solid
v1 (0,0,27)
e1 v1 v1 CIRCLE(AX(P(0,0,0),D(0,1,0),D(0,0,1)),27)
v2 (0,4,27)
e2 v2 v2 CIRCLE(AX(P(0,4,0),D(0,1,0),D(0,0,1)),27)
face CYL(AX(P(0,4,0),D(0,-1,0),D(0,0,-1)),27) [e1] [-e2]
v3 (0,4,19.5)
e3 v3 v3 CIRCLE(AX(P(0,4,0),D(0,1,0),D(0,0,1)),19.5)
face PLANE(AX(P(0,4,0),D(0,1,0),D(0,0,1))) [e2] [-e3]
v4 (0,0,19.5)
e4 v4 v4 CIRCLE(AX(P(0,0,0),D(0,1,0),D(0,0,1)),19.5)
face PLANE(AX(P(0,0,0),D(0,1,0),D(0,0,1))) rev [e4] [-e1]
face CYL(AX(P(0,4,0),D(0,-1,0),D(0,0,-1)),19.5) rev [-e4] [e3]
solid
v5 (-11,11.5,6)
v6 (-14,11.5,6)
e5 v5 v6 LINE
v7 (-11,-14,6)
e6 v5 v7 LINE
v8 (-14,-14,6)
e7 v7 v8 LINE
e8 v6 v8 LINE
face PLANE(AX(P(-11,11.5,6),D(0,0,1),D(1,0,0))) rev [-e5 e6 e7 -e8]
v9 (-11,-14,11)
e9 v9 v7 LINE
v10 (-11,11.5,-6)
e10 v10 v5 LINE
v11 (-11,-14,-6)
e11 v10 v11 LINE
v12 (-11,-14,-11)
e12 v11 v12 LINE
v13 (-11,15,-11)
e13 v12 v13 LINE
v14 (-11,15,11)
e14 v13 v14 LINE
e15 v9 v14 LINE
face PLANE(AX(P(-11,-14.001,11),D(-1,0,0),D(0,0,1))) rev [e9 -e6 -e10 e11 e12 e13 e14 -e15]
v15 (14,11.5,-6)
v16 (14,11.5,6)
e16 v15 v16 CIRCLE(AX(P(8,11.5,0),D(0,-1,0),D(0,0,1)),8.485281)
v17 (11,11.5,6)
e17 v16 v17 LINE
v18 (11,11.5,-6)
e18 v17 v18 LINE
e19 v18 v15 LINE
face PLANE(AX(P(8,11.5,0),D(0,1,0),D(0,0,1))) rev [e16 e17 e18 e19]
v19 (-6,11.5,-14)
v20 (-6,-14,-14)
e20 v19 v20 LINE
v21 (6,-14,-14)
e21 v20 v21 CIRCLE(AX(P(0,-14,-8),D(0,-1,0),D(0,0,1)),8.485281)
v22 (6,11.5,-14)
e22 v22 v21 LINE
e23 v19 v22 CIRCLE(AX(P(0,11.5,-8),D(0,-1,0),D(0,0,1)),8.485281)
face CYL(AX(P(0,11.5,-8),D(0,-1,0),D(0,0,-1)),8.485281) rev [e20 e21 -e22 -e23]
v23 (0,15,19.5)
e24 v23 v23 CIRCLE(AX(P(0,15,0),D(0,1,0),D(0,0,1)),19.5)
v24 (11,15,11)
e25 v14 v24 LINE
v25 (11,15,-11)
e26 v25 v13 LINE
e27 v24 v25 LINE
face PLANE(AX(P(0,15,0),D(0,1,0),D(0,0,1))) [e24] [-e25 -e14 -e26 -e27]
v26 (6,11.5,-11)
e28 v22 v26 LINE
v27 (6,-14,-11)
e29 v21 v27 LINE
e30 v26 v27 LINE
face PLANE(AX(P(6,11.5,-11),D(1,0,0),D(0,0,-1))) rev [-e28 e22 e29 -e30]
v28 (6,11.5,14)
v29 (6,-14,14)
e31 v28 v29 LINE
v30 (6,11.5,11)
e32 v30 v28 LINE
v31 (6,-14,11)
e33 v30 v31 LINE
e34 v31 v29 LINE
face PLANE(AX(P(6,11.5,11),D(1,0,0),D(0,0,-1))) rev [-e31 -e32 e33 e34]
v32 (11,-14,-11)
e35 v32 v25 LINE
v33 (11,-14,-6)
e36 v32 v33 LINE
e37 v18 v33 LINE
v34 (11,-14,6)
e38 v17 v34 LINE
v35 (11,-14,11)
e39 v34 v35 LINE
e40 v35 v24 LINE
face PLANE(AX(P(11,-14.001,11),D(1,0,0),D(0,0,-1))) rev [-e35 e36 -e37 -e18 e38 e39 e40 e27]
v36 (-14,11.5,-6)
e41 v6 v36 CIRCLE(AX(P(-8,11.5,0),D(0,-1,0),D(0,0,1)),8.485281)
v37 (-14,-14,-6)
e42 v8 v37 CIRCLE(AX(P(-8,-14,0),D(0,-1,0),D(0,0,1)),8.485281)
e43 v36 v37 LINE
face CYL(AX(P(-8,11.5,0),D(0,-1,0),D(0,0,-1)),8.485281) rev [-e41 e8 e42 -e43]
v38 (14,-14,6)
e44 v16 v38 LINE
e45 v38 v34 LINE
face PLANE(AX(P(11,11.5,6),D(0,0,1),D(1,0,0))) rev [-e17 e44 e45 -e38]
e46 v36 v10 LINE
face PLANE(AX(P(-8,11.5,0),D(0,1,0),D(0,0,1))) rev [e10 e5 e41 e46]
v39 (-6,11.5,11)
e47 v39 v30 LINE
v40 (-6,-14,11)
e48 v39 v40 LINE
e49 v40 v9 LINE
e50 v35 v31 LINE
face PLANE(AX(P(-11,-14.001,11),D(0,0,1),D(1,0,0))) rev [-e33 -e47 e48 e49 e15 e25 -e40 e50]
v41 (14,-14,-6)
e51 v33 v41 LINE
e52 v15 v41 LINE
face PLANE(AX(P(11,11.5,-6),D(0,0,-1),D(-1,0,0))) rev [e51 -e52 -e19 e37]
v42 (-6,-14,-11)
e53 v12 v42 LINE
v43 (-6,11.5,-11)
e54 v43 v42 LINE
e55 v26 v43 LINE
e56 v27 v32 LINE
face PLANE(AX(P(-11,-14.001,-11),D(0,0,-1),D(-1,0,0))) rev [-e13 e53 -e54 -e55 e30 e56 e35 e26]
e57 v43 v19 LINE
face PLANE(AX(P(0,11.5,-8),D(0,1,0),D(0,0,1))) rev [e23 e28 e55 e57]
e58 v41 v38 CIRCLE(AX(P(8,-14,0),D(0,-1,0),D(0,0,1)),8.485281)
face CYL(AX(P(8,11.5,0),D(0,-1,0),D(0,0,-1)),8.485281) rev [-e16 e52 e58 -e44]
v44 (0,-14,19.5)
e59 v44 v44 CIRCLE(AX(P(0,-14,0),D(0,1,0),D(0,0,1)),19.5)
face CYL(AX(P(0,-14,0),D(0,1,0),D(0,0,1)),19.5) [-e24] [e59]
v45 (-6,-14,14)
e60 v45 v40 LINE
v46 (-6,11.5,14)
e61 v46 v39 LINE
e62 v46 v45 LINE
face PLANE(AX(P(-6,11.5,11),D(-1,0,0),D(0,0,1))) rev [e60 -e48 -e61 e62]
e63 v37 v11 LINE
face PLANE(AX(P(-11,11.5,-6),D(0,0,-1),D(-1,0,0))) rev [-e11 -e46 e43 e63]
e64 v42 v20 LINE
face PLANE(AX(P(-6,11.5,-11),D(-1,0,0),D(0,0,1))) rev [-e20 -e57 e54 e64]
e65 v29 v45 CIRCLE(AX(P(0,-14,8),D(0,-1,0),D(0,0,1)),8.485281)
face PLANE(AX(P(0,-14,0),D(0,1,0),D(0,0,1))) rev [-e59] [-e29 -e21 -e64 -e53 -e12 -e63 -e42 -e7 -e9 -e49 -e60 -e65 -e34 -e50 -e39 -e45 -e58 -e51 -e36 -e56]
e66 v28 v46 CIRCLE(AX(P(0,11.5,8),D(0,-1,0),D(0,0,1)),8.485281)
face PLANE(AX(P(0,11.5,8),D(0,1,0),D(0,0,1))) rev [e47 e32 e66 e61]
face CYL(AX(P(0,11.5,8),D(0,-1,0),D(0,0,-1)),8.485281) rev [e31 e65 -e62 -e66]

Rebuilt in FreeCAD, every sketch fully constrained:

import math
import FreeCAD as App
import Part
import Sketcher


def add_polygon(sketch, points):
    """Adds a closed chain of lines whose ends are joined by coincident constraints."""
    first, n = sketch.GeometryCount, len(points)
    for a, b in zip(points, points[1:] + points[:1]):
        sketch.addGeometry(Part.LineSegment(App.Vector(*a, 0), App.Vector(*b, 0)), False)
    for i in range(n):
        sketch.addConstraint(Sketcher.Constraint("Coincident", first + i, 2, first + (i + 1) % n, 1))

doc = App.newDocument("Part")
body = doc.addObject("PartDesign::Body", "Body")

# Sketch on XZ plane
sketch1 = body.newObject("Sketcher::SketchObject", "Sketch")
sketch1.AttachmentSupport = (doc.getObject("XZ_Plane"), [""])
sketch1.MapMode = "FlatFace"
sketch1.addGeometry([
    Part.Circle(App.Vector(0, 0, 0), App.Vector(0, 0, 1), 27),
    Part.Circle(App.Vector(0, 0, 0), App.Vector(0, 0, 1), 20),
], False)
sketch1.addConstraint([
    Sketcher.Constraint("Coincident", 0, 3, -1, 1),
    Sketcher.Constraint("Coincident", 1, 3, -1, 1),
    Sketcher.Constraint("Diameter", 0, 54.0),
    Sketcher.Constraint("Diameter", 1, 39.0),
])
pad1 = body.newObject("PartDesign::Pad", "Pad")
pad1.Profile = sketch1
pad1.Length = 4
pad1.Reversed = True
body2 = doc.addObject("PartDesign::Body", "Body001")

# Sketch on XZ plane
sketch2 = body2.newObject("Sketcher::SketchObject", "Sketch001")
sketch2.AttachmentSupport = (doc.getObject("XZ_Plane001"), [""])
sketch2.MapMode = "FlatFace"
sketch2.AttachmentOffset = App.Placement(App.Vector(0, 0, -4), App.Rotation())
sketch2.addGeometry(Part.Circle(App.Vector(0, 0, 0), App.Vector(0, 0, 1), 20), False)
sketch2.addConstraint([
    Sketcher.Constraint("Coincident", 0, 3, -1, 1),
    Sketcher.Constraint("Diameter", 0, 39.0),
])
pad2 = body2.newObject("PartDesign::Pad", "Pad001")
pad2.Profile = sketch2
pad2.Type = "TwoLengths"
pad2.Length = 11
pad2.Length2 = 18
pad2.Reversed = True

# Sketch on XZ plane
sketch3 = body2.newObject("Sketcher::SketchObject", "Sketch002")
sketch3.AttachmentSupport = (doc.getObject("XZ_Plane001"), [""])
sketch3.MapMode = "FlatFace"
sketch3.AttachmentOffset = App.Placement(App.Vector(0, 0, -15), App.Rotation())
add_polygon(sketch3, [(-11, -11), (-11, 11), (11, 11), (11, -11)])  # lines 0-3
sketch3.addConstraint([
    Sketcher.Constraint("Vertical", 0),
    Sketcher.Constraint("Horizontal", 1),
    Sketcher.Constraint("Vertical", 2),
    Sketcher.Constraint("Horizontal", 3),
    Sketcher.Constraint("Symmetric", 0, 2, 2, 2, -1, 1),
    Sketcher.Constraint("Equal", 3, 0),
    Sketcher.Constraint("DistanceX", 1, 1, 1, 2, 22.0),
])
pocket1 = body2.newObject("PartDesign::Pocket", "Pocket")
pocket1.Profile = sketch3
pocket1.Length = 29
pocket1.Reversed = True

# Sketch on XZ plane
sketch4 = body2.newObject("Sketcher::SketchObject", "Sketch003")
sketch4.AttachmentSupport = (doc.getObject("XZ_Plane001"), [""])
sketch4.MapMode = "FlatFace"
sketch4.AttachmentOffset = App.Placement(App.Vector(0, 0, 14), App.Rotation())
sketch4.addGeometry([
    Part.LineSegment(App.Vector(11, 6, 0), App.Vector(11, -6, 0)),  # 0
    Part.LineSegment(App.Vector(11, -6, 0), App.Vector(14, -6, 0)),  # 1
    Part.ArcOfCircle(Part.Circle(App.Vector(8, 0, 0), App.Vector(0, 0, 1), 8.5), math.radians(-45), math.radians(45)),  # 2
    Part.LineSegment(App.Vector(14, 6, 0), App.Vector(11, 6, 0)),  # 3
    Part.LineSegment(App.Vector(-6, 11, 0), App.Vector(6, 11, 0)),  # 4
    Part.LineSegment(App.Vector(6, 11, 0), App.Vector(6, 14, 0)),  # 5
    Part.ArcOfCircle(Part.Circle(App.Vector(0, 8, 0), App.Vector(0, 0, 1), 8.5), math.radians(45), math.radians(135)),  # 6
    Part.LineSegment(App.Vector(-6, 14, 0), App.Vector(-6, 11, 0)),  # 7
    Part.LineSegment(App.Vector(6, -11, 0), App.Vector(-6, -11, 0)),  # 8
    Part.LineSegment(App.Vector(-6, -11, 0), App.Vector(-6, -14, 0)),  # 9
    Part.ArcOfCircle(Part.Circle(App.Vector(0, -8, 0), App.Vector(0, 0, 1), 8.5), math.radians(-135), math.radians(-45)),  # 10
    Part.LineSegment(App.Vector(6, -14, 0), App.Vector(6, -11, 0)),  # 11
    Part.LineSegment(App.Vector(-11, -6, 0), App.Vector(-11, 6, 0)),  # 12
    Part.LineSegment(App.Vector(-11, 6, 0), App.Vector(-14, 6, 0)),  # 13
    Part.ArcOfCircle(Part.Circle(App.Vector(-8, 0, 0), App.Vector(0, 0, 1), 8.5), math.radians(135), math.radians(225)),  # 14
    Part.LineSegment(App.Vector(-14, -6, 0), App.Vector(-11, -6, 0)),  # 15
], False)
sketch4.addConstraint([
    Sketcher.Constraint("Coincident", 0, 2, 1, 1),
    Sketcher.Constraint("Coincident", 1, 2, 2, 1),
    Sketcher.Constraint("Coincident", 2, 2, 3, 1),
    Sketcher.Constraint("Coincident", 3, 2, 0, 1),
    Sketcher.Constraint("Coincident", 4, 2, 5, 1),
    Sketcher.Constraint("Coincident", 5, 2, 6, 1),
    Sketcher.Constraint("Coincident", 6, 2, 7, 1),
    Sketcher.Constraint("Coincident", 7, 2, 4, 1),
    Sketcher.Constraint("Coincident", 8, 2, 9, 1),
    Sketcher.Constraint("Coincident", 9, 2, 10, 1),
    Sketcher.Constraint("Coincident", 10, 2, 11, 1),
    Sketcher.Constraint("Coincident", 11, 2, 8, 1),
    Sketcher.Constraint("Coincident", 12, 2, 13, 1),
    Sketcher.Constraint("Coincident", 13, 2, 14, 1),
    Sketcher.Constraint("Coincident", 14, 2, 15, 1),
    Sketcher.Constraint("Coincident", 15, 2, 12, 1),
    Sketcher.Constraint("Vertical", 0),
    Sketcher.Constraint("Horizontal", 1),
    Sketcher.Constraint("Horizontal", 3),
    Sketcher.Constraint("Horizontal", 4),
    Sketcher.Constraint("Vertical", 5),
    Sketcher.Constraint("Vertical", 7),
    Sketcher.Constraint("Horizontal", 8),
    Sketcher.Constraint("Vertical", 9),
    Sketcher.Constraint("Vertical", 11),
    Sketcher.Constraint("Vertical", 12),
    Sketcher.Constraint("Horizontal", 13),
    Sketcher.Constraint("Horizontal", 15),
    Sketcher.Constraint("Equal", 2, 6),
    Sketcher.Constraint("Equal", 6, 10),
    Sketcher.Constraint("Equal", 10, 14),
    Sketcher.Constraint("Symmetric", 6, 3, 10, 3, -1, 1),
    Sketcher.Constraint("Symmetric", 2, 3, 14, 3, -1, 1),
    Sketcher.Constraint("Symmetric", 4, 2, 8, 2, -1, 1),
    Sketcher.Constraint("Symmetric", 0, 2, 12, 2, -1, 1),
    Sketcher.Constraint("Symmetric", 5, 2, 6, 2, -2),
    Sketcher.Constraint("Symmetric", 2, 2, 13, 2, -2),
    Sketcher.Constraint("Horizontal", 9, 2, 10, 2),
    Sketcher.Constraint("Horizontal", 1, 2, 14, 2),
    Sketcher.Constraint("Equal", 8, 0),
    Sketcher.Constraint("Equal", 15, 5),
    Sketcher.Constraint("DistanceX", 1, 1, 1, 2, 3.0),
    Sketcher.Constraint("DistanceX", 4, 1, 4, 2, 12.0),
    Sketcher.Constraint("DistanceX", -1, 1, 2, 3, 8.0),
    Sketcher.Constraint("DistanceY", -1, 1, 6, 3, 8.0),
    Sketcher.Constraint("DistanceX", -1, 1, 0, 2, 11.0),
])
pocket2 = body2.newObject("PartDesign::Pocket", "Pocket001")
pocket2.Profile = sketch4
pocket2.Length = 25.5

doc.recompute()
